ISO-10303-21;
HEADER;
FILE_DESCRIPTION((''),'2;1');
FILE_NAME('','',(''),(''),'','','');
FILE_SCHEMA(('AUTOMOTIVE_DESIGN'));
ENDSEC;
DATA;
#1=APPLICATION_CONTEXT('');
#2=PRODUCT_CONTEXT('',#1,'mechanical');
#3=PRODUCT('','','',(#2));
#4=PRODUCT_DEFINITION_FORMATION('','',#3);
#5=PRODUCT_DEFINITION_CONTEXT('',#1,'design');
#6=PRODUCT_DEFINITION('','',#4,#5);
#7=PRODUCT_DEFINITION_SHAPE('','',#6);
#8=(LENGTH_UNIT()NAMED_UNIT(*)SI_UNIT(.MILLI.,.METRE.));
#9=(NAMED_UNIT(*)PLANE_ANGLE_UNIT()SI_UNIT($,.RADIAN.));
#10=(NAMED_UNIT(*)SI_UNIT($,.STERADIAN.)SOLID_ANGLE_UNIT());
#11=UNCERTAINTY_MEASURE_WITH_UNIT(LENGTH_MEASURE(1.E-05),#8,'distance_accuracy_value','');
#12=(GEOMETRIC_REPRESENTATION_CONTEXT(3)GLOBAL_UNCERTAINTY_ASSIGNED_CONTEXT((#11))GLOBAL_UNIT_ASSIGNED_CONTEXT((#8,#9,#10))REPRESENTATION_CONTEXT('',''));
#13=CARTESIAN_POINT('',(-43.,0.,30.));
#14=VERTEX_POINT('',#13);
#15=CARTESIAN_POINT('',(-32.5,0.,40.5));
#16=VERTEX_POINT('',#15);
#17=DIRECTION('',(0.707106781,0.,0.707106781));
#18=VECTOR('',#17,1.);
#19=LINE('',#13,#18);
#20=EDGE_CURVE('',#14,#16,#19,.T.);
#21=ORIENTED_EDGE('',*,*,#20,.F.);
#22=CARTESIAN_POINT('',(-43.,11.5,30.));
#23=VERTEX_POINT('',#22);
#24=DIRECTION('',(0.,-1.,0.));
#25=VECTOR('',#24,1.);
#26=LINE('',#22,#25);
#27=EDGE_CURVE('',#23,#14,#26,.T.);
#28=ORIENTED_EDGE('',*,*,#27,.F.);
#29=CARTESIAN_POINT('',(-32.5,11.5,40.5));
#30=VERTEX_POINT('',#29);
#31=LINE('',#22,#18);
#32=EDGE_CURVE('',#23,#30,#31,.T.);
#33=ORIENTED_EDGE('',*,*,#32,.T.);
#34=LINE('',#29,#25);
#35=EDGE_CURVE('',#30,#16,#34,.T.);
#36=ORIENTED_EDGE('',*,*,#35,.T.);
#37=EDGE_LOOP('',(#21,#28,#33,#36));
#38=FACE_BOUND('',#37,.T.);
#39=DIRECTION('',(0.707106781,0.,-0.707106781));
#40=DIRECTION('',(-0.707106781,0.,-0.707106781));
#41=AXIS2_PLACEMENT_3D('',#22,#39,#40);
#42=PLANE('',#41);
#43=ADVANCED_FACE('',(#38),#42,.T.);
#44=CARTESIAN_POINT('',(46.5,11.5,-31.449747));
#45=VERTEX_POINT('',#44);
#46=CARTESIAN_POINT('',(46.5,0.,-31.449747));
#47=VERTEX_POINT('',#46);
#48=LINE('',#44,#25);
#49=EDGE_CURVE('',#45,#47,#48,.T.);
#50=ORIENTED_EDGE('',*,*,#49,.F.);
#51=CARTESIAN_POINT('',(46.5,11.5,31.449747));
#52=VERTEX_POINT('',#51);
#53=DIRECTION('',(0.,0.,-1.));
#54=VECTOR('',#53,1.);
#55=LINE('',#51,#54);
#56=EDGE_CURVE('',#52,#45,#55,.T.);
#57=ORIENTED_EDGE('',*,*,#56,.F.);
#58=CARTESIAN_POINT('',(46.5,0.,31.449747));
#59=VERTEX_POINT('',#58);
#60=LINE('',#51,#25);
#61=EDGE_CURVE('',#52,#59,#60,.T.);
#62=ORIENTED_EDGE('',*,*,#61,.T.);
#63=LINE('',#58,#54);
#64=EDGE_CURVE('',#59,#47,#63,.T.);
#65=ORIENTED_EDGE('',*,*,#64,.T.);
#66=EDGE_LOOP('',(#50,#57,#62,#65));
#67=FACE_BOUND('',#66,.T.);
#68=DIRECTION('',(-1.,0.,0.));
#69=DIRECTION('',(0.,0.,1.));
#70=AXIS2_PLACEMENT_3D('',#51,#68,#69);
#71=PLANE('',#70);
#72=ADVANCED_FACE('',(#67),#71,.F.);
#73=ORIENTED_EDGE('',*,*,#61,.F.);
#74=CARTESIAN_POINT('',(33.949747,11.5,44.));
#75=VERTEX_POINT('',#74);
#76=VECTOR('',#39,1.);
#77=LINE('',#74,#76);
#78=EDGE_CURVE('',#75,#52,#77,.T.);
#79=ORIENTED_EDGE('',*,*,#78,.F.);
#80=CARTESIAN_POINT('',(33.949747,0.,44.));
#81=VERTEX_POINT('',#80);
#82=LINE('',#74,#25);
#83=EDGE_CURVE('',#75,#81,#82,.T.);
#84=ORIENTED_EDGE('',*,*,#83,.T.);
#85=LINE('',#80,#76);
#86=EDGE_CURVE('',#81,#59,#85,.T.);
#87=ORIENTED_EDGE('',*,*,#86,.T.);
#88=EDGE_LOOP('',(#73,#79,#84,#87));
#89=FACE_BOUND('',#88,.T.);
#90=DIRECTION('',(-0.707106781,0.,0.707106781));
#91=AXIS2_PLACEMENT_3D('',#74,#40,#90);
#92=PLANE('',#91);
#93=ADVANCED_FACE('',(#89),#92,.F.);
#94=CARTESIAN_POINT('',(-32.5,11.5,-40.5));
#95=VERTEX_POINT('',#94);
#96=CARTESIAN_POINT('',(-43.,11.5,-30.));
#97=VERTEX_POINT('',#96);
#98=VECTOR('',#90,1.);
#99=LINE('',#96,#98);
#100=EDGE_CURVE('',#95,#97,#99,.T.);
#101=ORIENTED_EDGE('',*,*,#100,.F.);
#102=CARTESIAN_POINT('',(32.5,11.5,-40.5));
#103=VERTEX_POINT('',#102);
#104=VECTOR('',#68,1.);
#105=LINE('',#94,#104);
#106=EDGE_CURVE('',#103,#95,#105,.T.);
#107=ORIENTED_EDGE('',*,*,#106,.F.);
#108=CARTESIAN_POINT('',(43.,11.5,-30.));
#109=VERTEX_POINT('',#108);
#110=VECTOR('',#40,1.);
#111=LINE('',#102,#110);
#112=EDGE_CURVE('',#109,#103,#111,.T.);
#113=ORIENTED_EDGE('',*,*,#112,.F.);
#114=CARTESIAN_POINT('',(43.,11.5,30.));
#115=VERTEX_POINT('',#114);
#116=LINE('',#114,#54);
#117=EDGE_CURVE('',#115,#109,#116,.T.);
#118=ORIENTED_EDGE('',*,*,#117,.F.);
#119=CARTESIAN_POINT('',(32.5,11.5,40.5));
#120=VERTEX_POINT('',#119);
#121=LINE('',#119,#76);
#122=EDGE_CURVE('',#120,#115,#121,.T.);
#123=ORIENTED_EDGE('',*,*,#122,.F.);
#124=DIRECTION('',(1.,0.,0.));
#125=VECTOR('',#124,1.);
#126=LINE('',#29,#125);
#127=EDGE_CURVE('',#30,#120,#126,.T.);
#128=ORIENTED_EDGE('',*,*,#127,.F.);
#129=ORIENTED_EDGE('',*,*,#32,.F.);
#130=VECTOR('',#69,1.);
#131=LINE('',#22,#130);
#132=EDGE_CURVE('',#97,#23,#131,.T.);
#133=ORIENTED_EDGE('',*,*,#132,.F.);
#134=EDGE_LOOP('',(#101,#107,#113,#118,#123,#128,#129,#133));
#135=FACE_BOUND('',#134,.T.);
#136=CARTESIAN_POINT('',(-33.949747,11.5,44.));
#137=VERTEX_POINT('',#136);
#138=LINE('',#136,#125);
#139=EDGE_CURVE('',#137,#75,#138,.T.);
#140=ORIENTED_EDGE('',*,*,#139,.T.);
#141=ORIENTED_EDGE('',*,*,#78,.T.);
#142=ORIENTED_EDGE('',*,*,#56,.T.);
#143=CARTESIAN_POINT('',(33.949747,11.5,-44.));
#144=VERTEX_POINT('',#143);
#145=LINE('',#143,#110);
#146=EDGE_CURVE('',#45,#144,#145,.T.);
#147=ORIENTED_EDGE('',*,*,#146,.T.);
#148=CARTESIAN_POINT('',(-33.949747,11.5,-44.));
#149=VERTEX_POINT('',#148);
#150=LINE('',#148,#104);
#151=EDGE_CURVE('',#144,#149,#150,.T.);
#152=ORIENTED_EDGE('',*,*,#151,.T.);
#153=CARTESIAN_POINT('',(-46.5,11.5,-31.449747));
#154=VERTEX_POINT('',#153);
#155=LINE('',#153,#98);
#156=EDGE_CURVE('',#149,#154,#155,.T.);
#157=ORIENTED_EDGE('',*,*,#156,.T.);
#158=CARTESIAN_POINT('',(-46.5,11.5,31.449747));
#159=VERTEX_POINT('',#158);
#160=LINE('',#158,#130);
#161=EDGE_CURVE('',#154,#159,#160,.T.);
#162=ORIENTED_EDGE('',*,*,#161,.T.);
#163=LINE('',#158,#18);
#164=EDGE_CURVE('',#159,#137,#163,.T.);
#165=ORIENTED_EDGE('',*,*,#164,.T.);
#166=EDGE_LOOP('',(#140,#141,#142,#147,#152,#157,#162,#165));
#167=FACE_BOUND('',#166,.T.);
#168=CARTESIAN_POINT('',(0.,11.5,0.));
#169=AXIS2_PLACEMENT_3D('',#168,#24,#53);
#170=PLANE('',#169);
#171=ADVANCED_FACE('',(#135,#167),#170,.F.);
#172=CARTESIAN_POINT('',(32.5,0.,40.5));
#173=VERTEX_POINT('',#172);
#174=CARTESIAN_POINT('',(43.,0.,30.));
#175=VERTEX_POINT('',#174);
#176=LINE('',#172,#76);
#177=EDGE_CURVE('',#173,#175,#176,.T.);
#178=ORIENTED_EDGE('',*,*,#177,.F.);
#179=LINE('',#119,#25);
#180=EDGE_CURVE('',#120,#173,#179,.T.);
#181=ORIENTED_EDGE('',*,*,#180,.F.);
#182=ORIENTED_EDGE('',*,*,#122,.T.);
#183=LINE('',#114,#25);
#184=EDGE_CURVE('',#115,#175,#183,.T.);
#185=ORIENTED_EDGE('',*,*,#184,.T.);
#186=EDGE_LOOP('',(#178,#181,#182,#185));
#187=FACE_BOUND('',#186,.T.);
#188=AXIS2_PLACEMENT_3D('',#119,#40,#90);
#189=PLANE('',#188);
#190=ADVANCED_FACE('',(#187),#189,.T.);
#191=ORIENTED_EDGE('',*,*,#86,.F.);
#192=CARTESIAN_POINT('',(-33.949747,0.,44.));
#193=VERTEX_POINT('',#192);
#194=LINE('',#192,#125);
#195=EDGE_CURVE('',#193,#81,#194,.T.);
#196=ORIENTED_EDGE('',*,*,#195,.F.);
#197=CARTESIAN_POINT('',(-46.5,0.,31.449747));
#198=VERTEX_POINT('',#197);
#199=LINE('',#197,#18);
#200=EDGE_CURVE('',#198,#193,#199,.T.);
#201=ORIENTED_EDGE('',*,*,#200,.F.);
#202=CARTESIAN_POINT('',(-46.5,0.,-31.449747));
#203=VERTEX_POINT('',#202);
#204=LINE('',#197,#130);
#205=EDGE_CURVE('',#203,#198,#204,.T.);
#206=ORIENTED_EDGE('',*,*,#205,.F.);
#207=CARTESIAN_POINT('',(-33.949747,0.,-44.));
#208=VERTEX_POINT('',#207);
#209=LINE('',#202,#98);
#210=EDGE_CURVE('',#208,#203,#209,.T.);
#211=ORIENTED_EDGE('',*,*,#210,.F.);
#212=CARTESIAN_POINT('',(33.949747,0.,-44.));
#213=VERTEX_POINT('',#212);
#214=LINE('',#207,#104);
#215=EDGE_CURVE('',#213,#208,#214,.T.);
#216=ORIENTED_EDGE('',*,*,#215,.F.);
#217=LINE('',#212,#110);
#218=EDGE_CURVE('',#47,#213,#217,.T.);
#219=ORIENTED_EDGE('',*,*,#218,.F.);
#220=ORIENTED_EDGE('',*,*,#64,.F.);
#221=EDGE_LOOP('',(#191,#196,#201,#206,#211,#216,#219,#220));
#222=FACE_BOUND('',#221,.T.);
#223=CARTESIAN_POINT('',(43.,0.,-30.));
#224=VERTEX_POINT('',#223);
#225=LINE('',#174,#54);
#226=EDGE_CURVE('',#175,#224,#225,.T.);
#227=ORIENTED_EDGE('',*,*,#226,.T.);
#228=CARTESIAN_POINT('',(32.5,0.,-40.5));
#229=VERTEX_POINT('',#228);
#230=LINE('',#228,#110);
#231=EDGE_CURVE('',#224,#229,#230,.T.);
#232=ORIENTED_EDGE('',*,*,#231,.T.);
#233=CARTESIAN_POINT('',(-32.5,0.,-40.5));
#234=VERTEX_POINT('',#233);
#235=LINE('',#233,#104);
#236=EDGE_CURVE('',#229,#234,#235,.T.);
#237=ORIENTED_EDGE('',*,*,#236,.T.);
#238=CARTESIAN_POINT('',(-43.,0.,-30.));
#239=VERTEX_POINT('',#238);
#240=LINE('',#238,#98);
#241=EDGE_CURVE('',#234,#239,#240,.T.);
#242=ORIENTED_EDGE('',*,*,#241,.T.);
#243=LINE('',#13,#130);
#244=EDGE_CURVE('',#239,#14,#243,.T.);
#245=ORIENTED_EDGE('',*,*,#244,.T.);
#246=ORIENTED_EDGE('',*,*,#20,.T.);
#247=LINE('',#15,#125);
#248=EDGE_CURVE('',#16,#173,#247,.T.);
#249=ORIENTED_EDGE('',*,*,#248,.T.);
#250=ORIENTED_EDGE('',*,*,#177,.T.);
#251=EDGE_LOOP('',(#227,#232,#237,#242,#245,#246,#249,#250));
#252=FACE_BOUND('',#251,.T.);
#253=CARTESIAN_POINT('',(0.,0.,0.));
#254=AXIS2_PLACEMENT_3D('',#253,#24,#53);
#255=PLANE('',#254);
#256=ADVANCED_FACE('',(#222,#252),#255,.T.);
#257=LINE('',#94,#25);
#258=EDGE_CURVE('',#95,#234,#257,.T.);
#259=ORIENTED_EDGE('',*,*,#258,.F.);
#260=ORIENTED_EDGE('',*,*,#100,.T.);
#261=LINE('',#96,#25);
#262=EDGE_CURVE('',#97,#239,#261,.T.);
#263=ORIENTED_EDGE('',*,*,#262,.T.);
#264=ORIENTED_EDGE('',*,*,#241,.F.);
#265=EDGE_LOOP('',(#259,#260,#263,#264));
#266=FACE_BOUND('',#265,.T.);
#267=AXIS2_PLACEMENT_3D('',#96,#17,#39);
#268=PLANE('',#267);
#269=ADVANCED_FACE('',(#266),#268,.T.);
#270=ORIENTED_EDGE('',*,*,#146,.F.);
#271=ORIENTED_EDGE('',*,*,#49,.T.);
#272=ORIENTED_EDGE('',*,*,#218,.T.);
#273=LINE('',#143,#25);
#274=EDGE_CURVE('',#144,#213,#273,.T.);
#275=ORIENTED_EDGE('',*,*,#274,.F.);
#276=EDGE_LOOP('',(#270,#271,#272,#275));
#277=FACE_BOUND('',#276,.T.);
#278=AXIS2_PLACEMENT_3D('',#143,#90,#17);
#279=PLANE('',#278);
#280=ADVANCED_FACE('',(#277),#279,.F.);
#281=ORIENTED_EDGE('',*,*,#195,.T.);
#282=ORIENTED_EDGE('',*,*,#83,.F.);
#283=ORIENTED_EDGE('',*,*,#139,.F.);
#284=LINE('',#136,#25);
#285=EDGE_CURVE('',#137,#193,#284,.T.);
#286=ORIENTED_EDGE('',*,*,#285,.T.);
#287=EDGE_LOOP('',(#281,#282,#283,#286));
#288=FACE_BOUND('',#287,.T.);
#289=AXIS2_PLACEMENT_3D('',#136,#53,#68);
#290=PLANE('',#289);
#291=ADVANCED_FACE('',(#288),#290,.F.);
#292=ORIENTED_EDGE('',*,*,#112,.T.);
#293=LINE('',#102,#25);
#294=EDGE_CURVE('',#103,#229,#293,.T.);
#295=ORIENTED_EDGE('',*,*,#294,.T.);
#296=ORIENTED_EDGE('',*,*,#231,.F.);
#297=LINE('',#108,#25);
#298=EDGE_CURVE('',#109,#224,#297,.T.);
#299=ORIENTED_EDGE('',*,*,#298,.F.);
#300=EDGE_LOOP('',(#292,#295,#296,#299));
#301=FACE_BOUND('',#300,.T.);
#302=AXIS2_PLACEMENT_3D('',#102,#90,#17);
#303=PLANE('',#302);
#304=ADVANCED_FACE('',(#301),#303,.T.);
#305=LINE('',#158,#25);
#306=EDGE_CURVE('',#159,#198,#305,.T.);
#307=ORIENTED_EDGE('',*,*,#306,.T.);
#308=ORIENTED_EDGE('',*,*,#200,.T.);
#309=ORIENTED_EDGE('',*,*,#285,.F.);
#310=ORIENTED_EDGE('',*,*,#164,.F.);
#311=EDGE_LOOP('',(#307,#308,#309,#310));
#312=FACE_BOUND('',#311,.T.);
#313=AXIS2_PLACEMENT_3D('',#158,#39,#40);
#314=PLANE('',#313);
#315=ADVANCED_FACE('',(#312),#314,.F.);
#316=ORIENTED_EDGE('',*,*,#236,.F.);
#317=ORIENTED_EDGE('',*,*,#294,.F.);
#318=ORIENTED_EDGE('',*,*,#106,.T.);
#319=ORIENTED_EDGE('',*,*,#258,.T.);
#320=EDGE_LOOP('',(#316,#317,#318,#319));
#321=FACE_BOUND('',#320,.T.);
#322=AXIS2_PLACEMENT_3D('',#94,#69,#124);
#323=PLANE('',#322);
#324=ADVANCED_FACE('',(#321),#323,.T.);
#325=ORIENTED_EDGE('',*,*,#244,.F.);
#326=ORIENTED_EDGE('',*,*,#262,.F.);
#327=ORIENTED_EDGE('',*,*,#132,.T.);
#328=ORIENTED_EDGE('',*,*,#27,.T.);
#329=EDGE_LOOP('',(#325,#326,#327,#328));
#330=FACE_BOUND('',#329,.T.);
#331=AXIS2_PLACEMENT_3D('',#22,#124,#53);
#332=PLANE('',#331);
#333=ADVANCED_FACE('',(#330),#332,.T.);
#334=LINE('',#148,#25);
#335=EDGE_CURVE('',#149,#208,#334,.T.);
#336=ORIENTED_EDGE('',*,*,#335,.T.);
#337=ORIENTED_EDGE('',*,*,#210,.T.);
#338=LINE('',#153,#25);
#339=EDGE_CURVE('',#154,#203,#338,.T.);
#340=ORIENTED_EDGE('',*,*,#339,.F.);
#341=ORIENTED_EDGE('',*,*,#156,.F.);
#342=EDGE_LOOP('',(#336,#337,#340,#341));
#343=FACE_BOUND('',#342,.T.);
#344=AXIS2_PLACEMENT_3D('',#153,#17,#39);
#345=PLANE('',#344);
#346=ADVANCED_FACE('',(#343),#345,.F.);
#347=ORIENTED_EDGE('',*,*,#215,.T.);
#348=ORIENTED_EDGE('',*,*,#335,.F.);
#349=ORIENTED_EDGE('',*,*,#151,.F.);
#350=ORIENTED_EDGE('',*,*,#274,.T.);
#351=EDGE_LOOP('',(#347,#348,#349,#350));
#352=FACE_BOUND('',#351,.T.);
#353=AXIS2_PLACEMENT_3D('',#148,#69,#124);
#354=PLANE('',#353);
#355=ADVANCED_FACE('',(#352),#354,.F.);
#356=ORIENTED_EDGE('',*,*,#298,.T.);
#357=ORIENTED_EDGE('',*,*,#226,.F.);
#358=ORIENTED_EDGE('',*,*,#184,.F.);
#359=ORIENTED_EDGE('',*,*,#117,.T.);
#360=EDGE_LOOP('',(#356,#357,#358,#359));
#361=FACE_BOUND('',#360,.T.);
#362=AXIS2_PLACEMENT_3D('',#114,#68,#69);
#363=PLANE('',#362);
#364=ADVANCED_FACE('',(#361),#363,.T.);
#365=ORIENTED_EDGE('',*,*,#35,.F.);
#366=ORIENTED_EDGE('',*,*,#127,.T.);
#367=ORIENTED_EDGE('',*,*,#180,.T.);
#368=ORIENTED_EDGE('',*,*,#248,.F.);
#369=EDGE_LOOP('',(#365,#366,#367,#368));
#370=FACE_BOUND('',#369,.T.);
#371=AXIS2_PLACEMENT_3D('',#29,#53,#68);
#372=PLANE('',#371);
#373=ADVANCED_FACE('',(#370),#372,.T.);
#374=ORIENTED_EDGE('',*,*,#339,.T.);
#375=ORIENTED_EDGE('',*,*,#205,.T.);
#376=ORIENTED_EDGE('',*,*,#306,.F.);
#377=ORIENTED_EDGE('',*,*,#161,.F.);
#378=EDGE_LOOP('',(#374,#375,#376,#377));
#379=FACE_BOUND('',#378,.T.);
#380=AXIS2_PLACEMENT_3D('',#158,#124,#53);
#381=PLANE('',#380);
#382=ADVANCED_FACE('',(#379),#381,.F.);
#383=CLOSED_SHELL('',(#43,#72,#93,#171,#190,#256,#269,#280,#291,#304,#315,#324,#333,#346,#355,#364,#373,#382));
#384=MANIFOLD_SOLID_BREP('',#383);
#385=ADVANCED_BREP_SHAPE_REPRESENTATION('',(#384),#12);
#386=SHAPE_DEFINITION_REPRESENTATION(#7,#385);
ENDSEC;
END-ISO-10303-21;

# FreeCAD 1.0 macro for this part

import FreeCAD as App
import Part
import Sketcher


def add_polygon(sketch, points):
    """Adds a closed chain of lines whose ends are joined by coincident constraints."""
    first, n = sketch.GeometryCount, len(points)
    for a, b in zip(points, points[1:] + points[:1]):
        sketch.addGeometry(Part.LineSegment(App.Vector(*a, 0), App.Vector(*b, 0)), False)
    for i in range(n):
        sketch.addConstraint(Sketcher.Constraint("Coincident", first + i, 2, first + (i + 1) % n, 1))

doc = App.newDocument("Part")
body = doc.addObject("PartDesign::Body", "Body")

# Sketch on XZ plane
sketch1 = body.newObject("Sketcher::SketchObject", "Sketch")
sketch1.AttachmentSupport = (doc.getObject("XZ_Plane"), [""])
sketch1.MapMode = "FlatFace"
add_polygon(sketch1, [(-34, -44), (-46, -31), (-46, 31), (-34, 44), (34, 44), (46, 31), (46, -31), (34, -44)])  # lines 0-7
add_polygon(sketch1, [(-43, -30), (-32, -40), (32, -40), (43, -30), (43, 30), (32, 40), (-32, 40), (-43, 30)])  # lines 8-15
sketch1.addConstraint([
    Sketcher.Constraint("Vertical", 1),
    Sketcher.Constraint("Horizontal", 3),
    Sketcher.Constraint("Vertical", 5),
    Sketcher.Constraint("Horizontal", 7),
    Sketcher.Constraint("Horizontal", 9),
    Sketcher.Constraint("Vertical", 11),
    Sketcher.Constraint("Horizontal", 13),
    Sketcher.Constraint("Vertical", 15),
    Sketcher.Constraint("Symmetric", 0, 2, 4, 2, -1, 1),
    Sketcher.Constraint("Symmetric", 2, 2, 6, 2, -1, 1),
    Sketcher.Constraint("Symmetric", 8, 2, 12, 2, -1, 1),
    Sketcher.Constraint("Symmetric", 10, 2, 14, 2, -1, 1),
    Sketcher.Constraint("Perpendicular", 0, 2),
    Sketcher.Constraint("Perpendicular", 2, 4),
    Sketcher.Constraint("Perpendicular", 4, 6),
    Sketcher.Constraint("Perpendicular", 6, 8),
    Sketcher.Constraint("Perpendicular", 8, 10),
    Sketcher.Constraint("Perpendicular", 10, 12),
    Sketcher.Constraint("Perpendicular", 12, 14),
    Sketcher.Constraint("Horizontal", 1, 2, 4, 2),
    Sketcher.Constraint("Horizontal", 11, 2, 14, 2),
    Sketcher.Constraint("Vertical", 3, 2, 6, 2),
    Sketcher.Constraint("DistanceX", 9, 1, 9, 2, 65.0),
    Sketcher.Constraint("DistanceY", 11, 1, 11, 2, 60.0),
    Sketcher.Constraint("DistanceY", -1, 1, 2, 2, 44.0),
    Sketcher.Constraint("DistanceX", -1, 1, 10, 2, 43.0),
    Sketcher.Constraint("DistanceX", 1, 2, 4, 2, 93.0),
    Sketcher.Constraint("DistanceX", 3, 1, 3, 2, 67.899495),
])
pad1 = body.newObject("PartDesign::Pad", "Pad")
pad1.Profile = sketch1
pad1.Length = 11.5
pad1.Reversed = True

doc.recompute()
